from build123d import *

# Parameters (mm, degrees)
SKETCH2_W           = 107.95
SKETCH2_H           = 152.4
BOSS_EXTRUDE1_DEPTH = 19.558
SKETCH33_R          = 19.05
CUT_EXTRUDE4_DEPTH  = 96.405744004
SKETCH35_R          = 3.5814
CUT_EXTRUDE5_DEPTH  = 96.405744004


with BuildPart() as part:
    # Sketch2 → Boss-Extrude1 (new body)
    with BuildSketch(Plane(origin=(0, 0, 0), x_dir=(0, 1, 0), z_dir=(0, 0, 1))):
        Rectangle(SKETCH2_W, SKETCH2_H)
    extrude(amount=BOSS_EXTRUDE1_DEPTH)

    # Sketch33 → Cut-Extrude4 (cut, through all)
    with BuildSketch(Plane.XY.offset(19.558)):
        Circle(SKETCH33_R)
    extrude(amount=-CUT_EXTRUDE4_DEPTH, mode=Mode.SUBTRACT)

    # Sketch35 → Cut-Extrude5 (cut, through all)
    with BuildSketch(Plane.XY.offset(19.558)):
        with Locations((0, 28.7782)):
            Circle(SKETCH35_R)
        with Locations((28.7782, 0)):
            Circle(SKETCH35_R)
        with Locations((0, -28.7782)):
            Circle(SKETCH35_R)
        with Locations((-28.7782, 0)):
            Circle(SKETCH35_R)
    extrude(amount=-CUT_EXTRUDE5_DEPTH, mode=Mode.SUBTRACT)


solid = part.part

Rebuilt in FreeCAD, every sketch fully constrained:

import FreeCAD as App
import Part
import Sketcher
from FreeCAD import Vector
Q = App.Units.Quantity

doc = App.newDocument("Part")
body = doc.addObject("PartDesign::Body", "Body")

# Sketch on XY plane
sketch1 = body.newObject("Sketcher::SketchObject", "Sketch")
sketch1.AttachmentSupport = (doc.getObject("XY_Plane"), [""])
sketch1.MapMode = "FlatFace"
sketch1.addGeometry(Part.LineSegment(Vector(-76.2, -53.975, 0), Vector(76.2, -53.975, 0)), False)
sketch1.addGeometry(Part.LineSegment(Vector(76.2, -53.975, 0), Vector(76.2, 53.975, 0)), False)
sketch1.addGeometry(Part.LineSegment(Vector(76.2, 53.975, 0), Vector(-76.2, 53.975, 0)), False)
sketch1.addGeometry(Part.LineSegment(Vector(-76.2, 53.975, 0), Vector(-76.2, -53.975, 0)), False)
sketch1.addConstraint(Sketcher.Constraint("Coincident", 0, 2, 1, 1))
sketch1.addConstraint(Sketcher.Constraint("Coincident", 1, 2, 2, 1))
sketch1.addConstraint(Sketcher.Constraint("Coincident", 2, 2, 3, 1))
sketch1.addConstraint(Sketcher.Constraint("Coincident", 3, 2, 0, 1))
sketch1.addConstraint(Sketcher.Constraint("Horizontal", 0))
sketch1.addConstraint(Sketcher.Constraint("Vertical", 1))
sketch1.addConstraint(Sketcher.Constraint("Horizontal", 2))
sketch1.addConstraint(Sketcher.Constraint("Vertical", 3))
sketch1.addConstraint(Sketcher.Constraint("Symmetric", 0, 2, 2, 2, -1, 1))
sketch1.addConstraint(Sketcher.Constraint("DistanceX", 0, 1, 0, 2, Q("6 in")))
sketch1.addConstraint(Sketcher.Constraint("DistanceY", 1, 1, 1, 2, Q("4.25 in")))
pad1 = body.newObject("PartDesign::Pad", "Pad")
pad1.Profile = sketch1
pad1.Length = Q("0.77 in")

# Sketch on XY plane
sketch2 = body.newObject("Sketcher::SketchObject", "Sketch001")
sketch2.AttachmentSupport = (doc.getObject("XY_Plane"), [""])
sketch2.MapMode = "FlatFace"
sketch2.AttachmentOffset = App.Placement(Vector(0, 0, 0.77 * 25.4), App.Rotation())
sketch2.addGeometry(Part.Circle(Vector(0, 0, 0), Vector(0, 0, 1), 19.05), False)
sketch2.addConstraint(Sketcher.Constraint("Coincident", 0, 3, -1, 1))
sketch2.addConstraint(Sketcher.Constraint("Diameter", 0, Q("1.5 in")))
pocket1 = body.newObject("PartDesign::Pocket", "Pocket")
pocket1.Profile = sketch2
pocket1.Type = "ThroughAll"

# Sketch on XY plane
sketch3 = body.newObject("Sketcher::SketchObject", "Sketch002")
sketch3.AttachmentSupport = (doc.getObject("XY_Plane"), [""])
sketch3.MapMode = "FlatFace"
sketch3.AttachmentOffset = App.Placement(Vector(0, 0, 0.77 * 25.4), App.Rotation())
sketch3.addGeometry(Part.Circle(Vector(0, 28.7782, 0), Vector(0, 0, 1), 3.5814), False)
sketch3.addGeometry(Part.Circle(Vector(28.7782, 0, 0), Vector(0, 0, 1), 3.5814), False)
sketch3.addGeometry(Part.Circle(Vector(0, -28.7782, 0), Vector(0, 0, 1), 3.5814), False)
sketch3.addGeometry(Part.Circle(Vector(-28.7782, 0, 0), Vector(0, 0, 1), 3.5814), False)
sketch3.addConstraint(Sketcher.Constraint("Equal", 0, 1))
sketch3.addConstraint(Sketcher.Constraint("Equal", 1, 2))
sketch3.addConstraint(Sketcher.Constraint("Equal", 2, 3))
sketch3.addConstraint(Sketcher.Constraint("Symmetric", 0, 3, 2, 3, -1, 1))
sketch3.addConstraint(Sketcher.Constraint("Symmetric", 1, 3, 3, 3, -1, 1))
sketch3.addConstraint(Sketcher.Constraint("PointOnObject", 0, 3, -2))
sketch3.addConstraint(Sketcher.Constraint("PointOnObject", 1, 3, -1))
sketch3.addConstraint(Sketcher.Constraint("Diameter", 0, Q("0.282 in")))
sketch3.addConstraint(Sketcher.Constraint("DistanceY", -1, 1, 0, 3, Q("1.133 in")))
sketch3.addConstraint(Sketcher.Constraint("DistanceX", -1, 1, 1, 3, Q("1.133 in")))
pocket2 = body.newObject("PartDesign::Pocket", "Pocket001")
pocket2.Profile = sketch3
pocket2.Type = "ThroughAll"

doc.recompute()
